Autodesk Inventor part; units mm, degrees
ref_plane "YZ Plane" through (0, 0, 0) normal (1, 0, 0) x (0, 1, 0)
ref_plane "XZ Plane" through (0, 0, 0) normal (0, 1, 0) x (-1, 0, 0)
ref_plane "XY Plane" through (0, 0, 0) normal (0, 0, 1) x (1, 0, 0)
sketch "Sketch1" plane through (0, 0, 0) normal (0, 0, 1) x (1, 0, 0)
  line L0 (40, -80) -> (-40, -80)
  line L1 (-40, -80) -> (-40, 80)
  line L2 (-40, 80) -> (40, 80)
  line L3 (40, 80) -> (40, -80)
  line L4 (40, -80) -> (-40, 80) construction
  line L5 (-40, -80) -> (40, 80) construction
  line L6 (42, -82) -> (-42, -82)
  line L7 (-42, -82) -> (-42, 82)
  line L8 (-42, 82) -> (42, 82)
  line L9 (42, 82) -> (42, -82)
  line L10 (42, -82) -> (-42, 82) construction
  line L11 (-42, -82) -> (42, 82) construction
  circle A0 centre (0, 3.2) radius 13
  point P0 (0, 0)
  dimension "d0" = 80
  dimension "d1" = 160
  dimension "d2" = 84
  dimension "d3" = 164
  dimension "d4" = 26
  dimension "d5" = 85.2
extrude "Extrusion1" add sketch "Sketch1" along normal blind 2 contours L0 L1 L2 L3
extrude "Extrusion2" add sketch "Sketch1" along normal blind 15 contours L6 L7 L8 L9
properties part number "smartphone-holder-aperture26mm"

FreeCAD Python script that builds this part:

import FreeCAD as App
import Part
import Sketcher
from FreeCAD import Vector

doc = App.newDocument("Part")
body = doc.addObject("PartDesign::Body", "Body")

# Sketch on XY plane
sketch1 = doc.addObject("Sketcher::SketchObject", "Sketch")
body.addObject(sketch1)
sketch1.AttachmentSupport = (doc.XY_Plane, [""])
sketch1.MapMode = "FlatFace"
sketch1.addGeometry([
    Part.LineSegment(Vector(-40, -80, 0), Vector(40, -80, 0)),  # 0
    Part.LineSegment(Vector(40, -80, 0), Vector(40, 80, 0)),  # 1
    Part.LineSegment(Vector(40, 80, 0), Vector(-40, 80, 0)),  # 2
    Part.LineSegment(Vector(-40, 80, 0), Vector(-40, -80, 0)),  # 3
    Part.Circle(Vector(0, 3, 0), Vector(0, 0, 1), 13),  # 4
], False)
sketch1.addConstraint([
    Sketcher.Constraint("Coincident", 0, 2, 1, 1),
    Sketcher.Constraint("Coincident", 1, 2, 2, 1),
    Sketcher.Constraint("Coincident", 2, 2, 3, 1),
    Sketcher.Constraint("Coincident", 3, 2, 0, 1),
    Sketcher.Constraint("Horizontal", 0),
    Sketcher.Constraint("Vertical", 1),
    Sketcher.Constraint("Horizontal", 2),
    Sketcher.Constraint("Vertical", 3),
    Sketcher.Constraint("Symmetric", 0, 2, 2, 2, -1, 1),
    Sketcher.Constraint("PointOnObject", 4, 3, -2),
    Sketcher.Constraint("Diameter", 4, 26.0),
    Sketcher.Constraint("DistanceX", 0, 1, 0, 2, 80.0),
    Sketcher.Constraint("DistanceY", 1, 1, 1, 2, 160.0),
    Sketcher.Constraint("DistanceY", -1, 1, 4, 3, 3.2),
])
pad1 = doc.addObject("PartDesign::Pad", "Pad")
body.addObject(pad1)
pad1.Profile = sketch1
pad1.Length = 2

# Sketch on XY plane
sketch2 = doc.addObject("Sketcher::SketchObject", "Sketch001")
body.addObject(sketch2)
sketch2.AttachmentSupport = (doc.XY_Plane, [""])
sketch2.MapMode = "FlatFace"
sketch2.addGeometry([
    Part.LineSegment(Vector(-42, -82, 0), Vector(42, -82, 0)),  # 0
    Part.LineSegment(Vector(42, -82, 0), Vector(42, 82, 0)),  # 1
    Part.LineSegment(Vector(42, 82, 0), Vector(-42, 82, 0)),  # 2
    Part.LineSegment(Vector(-42, 82, 0), Vector(-42, -82, 0)),  # 3
    Part.LineSegment(Vector(40, 80, 0), Vector(40, -80, 0)),  # 4
    Part.LineSegment(Vector(40, -80, 0), Vector(-40, -80, 0)),  # 5
    Part.LineSegment(Vector(-40, -80, 0), Vector(-40, 80, 0)),  # 6
    Part.LineSegment(Vector(-40, 80, 0), Vector(40, 80, 0)),  # 7
], False)
sketch2.addConstraint([
    Sketcher.Constraint("Coincident", 0, 2, 1, 1),
    Sketcher.Constraint("Coincident", 1, 2, 2, 1),
    Sketcher.Constraint("Coincident", 2, 2, 3, 1),
    Sketcher.Constraint("Coincident", 3, 2, 0, 1),
    Sketcher.Constraint("Coincident", 4, 2, 5, 1),
    Sketcher.Constraint("Coincident", 5, 2, 6, 1),
    Sketcher.Constraint("Coincident", 6, 2, 7, 1),
    Sketcher.Constraint("Coincident", 7, 2, 4, 1),
    Sketcher.Constraint("Horizontal", 0),
    Sketcher.Constraint("Vertical", 1),
    Sketcher.Constraint("Horizontal", 2),
    Sketcher.Constraint("Vertical", 3),
    Sketcher.Constraint("Vertical", 4),
    Sketcher.Constraint("Horizontal", 5),
    Sketcher.Constraint("Vertical", 6),
    Sketcher.Constraint("Horizontal", 7),
    Sketcher.Constraint("Symmetric", 0, 2, 2, 2, -1, 1),
    Sketcher.Constraint("Symmetric", 4, 2, 6, 2, -1, 1),
    Sketcher.Constraint("DistanceX", 0, 1, 0, 2, 84.0),
    Sketcher.Constraint("DistanceX", 5, 2, 5, 1, 80.0),
    Sketcher.Constraint("DistanceY", 1, 1, 1, 2, 164.0),
    Sketcher.Constraint("DistanceY", 4, 2, 4, 1, 160.0),
])
pad2 = doc.addObject("PartDesign::Pad", "Pad001")
body.addObject(pad2)
pad2.Profile = sketch2
pad2.Length = 15

doc.recompute()
